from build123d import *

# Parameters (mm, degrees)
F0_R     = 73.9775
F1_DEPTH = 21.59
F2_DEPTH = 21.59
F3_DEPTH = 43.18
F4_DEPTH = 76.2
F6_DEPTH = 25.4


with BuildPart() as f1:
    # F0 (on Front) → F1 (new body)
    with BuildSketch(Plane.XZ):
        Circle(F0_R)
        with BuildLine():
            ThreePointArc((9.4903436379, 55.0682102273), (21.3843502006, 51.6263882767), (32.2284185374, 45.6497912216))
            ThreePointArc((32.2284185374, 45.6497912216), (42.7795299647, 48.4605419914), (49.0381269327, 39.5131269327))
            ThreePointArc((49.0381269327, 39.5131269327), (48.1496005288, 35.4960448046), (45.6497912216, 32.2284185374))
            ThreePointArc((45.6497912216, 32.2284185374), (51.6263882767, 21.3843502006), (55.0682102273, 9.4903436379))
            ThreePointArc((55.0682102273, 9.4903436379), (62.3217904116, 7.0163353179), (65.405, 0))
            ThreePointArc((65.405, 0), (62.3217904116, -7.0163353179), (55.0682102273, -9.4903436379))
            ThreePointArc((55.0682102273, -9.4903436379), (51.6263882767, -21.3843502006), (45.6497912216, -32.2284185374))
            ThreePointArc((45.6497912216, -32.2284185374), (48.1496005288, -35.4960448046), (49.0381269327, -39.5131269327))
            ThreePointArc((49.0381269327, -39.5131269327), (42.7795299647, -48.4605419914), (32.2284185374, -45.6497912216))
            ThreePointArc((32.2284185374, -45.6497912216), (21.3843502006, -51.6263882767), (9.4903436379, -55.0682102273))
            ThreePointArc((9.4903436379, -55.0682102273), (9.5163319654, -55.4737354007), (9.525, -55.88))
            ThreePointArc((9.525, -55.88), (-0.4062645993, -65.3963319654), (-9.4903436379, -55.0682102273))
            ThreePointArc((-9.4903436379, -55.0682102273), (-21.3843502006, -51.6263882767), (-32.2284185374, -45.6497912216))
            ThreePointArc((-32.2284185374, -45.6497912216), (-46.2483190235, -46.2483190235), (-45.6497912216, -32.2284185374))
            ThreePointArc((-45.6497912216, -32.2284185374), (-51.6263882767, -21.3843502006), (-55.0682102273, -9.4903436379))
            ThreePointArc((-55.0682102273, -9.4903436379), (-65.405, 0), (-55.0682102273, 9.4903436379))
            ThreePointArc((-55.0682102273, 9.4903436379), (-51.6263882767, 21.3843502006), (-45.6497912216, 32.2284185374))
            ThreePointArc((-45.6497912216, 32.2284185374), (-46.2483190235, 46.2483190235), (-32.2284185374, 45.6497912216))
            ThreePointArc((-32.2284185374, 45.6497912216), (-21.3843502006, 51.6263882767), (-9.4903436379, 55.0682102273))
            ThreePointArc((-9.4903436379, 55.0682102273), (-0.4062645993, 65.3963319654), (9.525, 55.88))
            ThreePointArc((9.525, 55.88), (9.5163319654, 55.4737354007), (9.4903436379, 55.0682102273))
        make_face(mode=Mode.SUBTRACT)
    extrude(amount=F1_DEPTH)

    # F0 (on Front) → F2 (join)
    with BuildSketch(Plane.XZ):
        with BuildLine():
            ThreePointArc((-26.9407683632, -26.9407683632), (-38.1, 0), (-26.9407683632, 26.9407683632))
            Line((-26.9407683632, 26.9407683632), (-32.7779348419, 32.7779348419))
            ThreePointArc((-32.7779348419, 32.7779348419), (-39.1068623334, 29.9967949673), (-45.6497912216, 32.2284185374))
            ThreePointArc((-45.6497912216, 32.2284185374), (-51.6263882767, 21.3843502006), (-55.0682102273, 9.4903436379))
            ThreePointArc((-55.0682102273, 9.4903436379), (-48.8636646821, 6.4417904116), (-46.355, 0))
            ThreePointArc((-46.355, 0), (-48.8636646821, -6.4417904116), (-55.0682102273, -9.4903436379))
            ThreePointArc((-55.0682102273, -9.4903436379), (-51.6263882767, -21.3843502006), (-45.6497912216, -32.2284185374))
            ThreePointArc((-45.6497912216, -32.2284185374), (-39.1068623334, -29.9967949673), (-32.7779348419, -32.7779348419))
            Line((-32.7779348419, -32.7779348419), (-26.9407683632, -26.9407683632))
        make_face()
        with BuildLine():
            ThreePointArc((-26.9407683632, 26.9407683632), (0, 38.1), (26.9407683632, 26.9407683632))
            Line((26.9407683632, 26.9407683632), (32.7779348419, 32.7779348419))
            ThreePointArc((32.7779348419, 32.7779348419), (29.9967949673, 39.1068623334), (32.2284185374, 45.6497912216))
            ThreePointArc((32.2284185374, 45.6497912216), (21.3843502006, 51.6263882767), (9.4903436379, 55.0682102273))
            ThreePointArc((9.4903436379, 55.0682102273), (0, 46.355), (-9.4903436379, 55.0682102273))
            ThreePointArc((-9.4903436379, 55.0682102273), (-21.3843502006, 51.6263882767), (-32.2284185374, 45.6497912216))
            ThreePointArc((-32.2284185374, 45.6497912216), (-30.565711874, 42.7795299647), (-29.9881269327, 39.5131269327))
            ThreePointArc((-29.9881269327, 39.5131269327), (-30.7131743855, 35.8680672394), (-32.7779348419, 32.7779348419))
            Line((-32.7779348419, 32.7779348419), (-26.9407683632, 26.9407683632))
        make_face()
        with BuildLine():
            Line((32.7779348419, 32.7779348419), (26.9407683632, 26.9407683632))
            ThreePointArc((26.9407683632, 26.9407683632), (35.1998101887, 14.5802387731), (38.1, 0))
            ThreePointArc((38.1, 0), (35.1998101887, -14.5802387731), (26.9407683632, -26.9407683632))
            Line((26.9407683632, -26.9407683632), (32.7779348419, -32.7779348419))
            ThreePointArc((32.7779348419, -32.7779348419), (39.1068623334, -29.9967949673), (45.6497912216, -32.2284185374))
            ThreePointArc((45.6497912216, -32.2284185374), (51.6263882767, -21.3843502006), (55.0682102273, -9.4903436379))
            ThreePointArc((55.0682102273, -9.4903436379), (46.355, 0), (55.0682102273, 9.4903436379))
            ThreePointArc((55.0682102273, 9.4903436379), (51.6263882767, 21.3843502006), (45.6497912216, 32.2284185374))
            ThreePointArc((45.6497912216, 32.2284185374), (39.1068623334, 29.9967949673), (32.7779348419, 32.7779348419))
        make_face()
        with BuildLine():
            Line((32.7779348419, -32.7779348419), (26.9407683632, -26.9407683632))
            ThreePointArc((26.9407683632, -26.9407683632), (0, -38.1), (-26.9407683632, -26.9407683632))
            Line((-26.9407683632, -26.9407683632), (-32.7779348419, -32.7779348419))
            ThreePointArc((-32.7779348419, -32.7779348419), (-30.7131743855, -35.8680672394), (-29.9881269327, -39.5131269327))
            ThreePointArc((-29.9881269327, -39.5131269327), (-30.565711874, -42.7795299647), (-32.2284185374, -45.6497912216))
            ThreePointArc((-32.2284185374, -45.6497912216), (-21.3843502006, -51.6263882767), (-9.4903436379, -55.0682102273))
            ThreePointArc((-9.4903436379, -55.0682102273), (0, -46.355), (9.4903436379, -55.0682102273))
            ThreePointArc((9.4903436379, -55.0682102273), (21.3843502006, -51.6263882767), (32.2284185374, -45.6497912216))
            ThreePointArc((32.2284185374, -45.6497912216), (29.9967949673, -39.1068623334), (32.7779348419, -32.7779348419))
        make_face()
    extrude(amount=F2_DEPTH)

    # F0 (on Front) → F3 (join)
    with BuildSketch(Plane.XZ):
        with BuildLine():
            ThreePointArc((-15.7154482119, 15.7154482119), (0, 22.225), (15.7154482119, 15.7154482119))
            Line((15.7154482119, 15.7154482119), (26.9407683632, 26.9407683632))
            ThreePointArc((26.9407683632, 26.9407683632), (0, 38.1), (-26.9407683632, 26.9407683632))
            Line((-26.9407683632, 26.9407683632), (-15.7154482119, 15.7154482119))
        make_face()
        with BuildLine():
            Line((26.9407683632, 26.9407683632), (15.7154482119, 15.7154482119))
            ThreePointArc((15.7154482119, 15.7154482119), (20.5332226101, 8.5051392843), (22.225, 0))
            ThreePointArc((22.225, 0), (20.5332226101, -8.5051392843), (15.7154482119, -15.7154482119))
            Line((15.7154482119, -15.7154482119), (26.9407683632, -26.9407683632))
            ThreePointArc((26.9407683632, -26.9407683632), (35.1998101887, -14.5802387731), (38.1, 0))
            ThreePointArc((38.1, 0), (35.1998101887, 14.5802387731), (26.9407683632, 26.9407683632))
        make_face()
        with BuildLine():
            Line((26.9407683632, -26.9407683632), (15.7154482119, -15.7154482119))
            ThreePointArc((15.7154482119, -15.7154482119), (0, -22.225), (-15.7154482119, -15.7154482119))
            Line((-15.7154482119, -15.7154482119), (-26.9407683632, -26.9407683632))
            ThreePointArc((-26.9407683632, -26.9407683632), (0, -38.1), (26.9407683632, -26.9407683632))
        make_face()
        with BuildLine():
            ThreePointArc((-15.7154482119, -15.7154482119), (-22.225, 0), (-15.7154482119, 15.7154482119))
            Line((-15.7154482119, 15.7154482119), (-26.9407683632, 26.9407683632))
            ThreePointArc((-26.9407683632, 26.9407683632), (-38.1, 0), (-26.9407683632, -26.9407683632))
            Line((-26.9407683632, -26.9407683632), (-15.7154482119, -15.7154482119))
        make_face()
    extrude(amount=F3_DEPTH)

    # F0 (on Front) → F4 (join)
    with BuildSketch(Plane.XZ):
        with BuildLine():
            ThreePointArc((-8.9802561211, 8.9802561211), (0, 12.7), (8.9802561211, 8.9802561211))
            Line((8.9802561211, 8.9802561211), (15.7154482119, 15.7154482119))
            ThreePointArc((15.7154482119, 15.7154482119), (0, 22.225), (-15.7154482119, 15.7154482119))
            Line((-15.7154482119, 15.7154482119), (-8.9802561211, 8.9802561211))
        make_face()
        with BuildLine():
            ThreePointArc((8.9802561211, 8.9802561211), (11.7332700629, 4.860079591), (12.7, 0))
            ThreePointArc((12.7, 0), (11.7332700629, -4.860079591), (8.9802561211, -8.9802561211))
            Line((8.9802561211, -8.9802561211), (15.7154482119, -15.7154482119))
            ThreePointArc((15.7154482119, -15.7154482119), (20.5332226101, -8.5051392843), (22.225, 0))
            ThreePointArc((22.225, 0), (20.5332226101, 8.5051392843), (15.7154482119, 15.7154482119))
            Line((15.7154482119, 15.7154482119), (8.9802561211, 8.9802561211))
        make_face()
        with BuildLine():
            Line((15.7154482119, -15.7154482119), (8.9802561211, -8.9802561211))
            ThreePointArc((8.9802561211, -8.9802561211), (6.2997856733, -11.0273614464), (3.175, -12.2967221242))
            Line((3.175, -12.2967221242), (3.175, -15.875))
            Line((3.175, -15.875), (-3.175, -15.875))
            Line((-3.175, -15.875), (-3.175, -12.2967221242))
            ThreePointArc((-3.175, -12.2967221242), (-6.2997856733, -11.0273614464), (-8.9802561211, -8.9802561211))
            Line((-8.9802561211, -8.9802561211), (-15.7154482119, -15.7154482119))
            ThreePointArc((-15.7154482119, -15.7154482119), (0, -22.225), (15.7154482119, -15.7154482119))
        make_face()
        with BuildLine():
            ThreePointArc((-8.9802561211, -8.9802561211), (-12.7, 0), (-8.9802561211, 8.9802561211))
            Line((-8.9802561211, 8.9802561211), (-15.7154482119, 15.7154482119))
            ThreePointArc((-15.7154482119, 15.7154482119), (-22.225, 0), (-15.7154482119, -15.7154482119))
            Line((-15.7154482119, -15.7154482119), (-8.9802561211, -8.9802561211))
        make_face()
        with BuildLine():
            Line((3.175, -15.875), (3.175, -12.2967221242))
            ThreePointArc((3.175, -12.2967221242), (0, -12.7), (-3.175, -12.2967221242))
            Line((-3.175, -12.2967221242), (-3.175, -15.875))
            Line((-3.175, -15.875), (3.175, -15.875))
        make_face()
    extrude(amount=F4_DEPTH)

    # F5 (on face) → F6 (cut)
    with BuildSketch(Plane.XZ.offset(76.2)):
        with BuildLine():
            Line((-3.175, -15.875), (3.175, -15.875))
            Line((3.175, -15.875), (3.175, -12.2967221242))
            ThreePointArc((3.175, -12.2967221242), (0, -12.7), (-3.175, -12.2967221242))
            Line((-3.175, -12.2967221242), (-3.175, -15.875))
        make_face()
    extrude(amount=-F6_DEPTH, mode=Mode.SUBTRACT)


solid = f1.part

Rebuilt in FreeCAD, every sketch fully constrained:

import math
import FreeCAD as App
import Part
import Sketcher

V = App.Vector
Q = App.Units.Quantity

doc = App.newDocument("Part")
body = doc.addObject("PartDesign::Body", "Body")

# Sketch on XZ plane
sketch1 = body.newObject("Sketcher::SketchObject", "Sketch")
sketch1.AttachmentSupport = (doc.getObject("XZ_Plane"), [""])
sketch1.MapMode = "FlatFace"
sketch1.addGeometry(Part.Circle(V(0, 0, 0), V(0, 0, 1), 74), False)
sketch1.addGeometry(Part.ArcOfCircle(Part.Circle(V(0, 55.9, 0), V(0, 0, 1), 9.5), math.radians(-4.89), math.radians(0)), False)
sketch1.addGeometry(Part.ArcOfCircle(Part.Circle(V(0, 0, 0), V(0, 0, 1), 55.9), math.radians(55), math.radians(80)), False)
sketch1.addGeometry(Part.ArcOfCircle(Part.Circle(V(39.5, 39.5, 0), V(0, 0, 1), 9.5), math.radians(0), math.radians(140)), False)
sketch1.addGeometry(Part.ArcOfCircle(Part.Circle(V(39.5, 39.5, 0), V(0, 0, 1), 9.5), math.radians(-50), math.radians(0)), False)
sketch1.addGeometry(Part.ArcOfCircle(Part.Circle(V(0, 0, 0), V(0, 0, 1), 55.9), math.radians(10), math.radians(35)), False)
sketch1.addGeometry(Part.ArcOfCircle(Part.Circle(V(55.9, 0, 0), V(0, 0, 1), 9.5), math.radians(0), math.radians(95)), False)
sketch1.addGeometry(Part.ArcOfCircle(Part.Circle(V(55.9, 0, 0), V(0, 0, 1), 9.5), math.radians(-95), math.radians(0)), False)
sketch1.addGeometry(Part.ArcOfCircle(Part.Circle(V(0, 0, 0), V(0, 0, 1), 55.9), math.radians(-35), math.radians(-10)), False)
sketch1.addGeometry(Part.ArcOfCircle(Part.Circle(V(39.5, -39.5, 0), V(0, 0, 1), 9.5), math.radians(0), math.radians(50)), False)
sketch1.addGeometry(Part.ArcOfCircle(Part.Circle(V(39.5, -39.5, 0), V(0, 0, 1), 9.5), math.radians(-140), math.radians(0)), False)
sketch1.addGeometry(Part.ArcOfCircle(Part.Circle(V(0, 0, 0), V(0, 0, 1), 55.9), math.radians(-80), math.radians(-55)), False)
sketch1.addGeometry(Part.ArcOfCircle(Part.Circle(V(0, -55.9, 0), V(0, 0, 1), 9.5), math.radians(0), math.radians(4.89)), False)
sketch1.addGeometry(Part.ArcOfCircle(Part.Circle(V(0, -55.9, 0), V(0, 0, 1), 9.5), math.radians(175), math.radians(360)), False)
sketch1.addGeometry(Part.ArcOfCircle(Part.Circle(V(0, 0, 0), V(0, 0, 1), 55.9), math.radians(-125), math.radians(-100)), False)
sketch1.addGeometry(Part.ArcOfCircle(Part.Circle(V(-39.5, -39.5, 0), V(0, 0, 1), 9.5), math.radians(130), math.radians(320)), False)
sketch1.addGeometry(Part.ArcOfCircle(Part.Circle(V(0, 0, 0), V(0, 0, 1), 55.9), math.radians(-170), math.radians(-145)), False)
sketch1.addGeometry(Part.ArcOfCircle(Part.Circle(V(-55.9, 0, 0), V(0, 0, 1), 9.5), math.radians(85), math.radians(275)), False)
sketch1.addGeometry(Part.ArcOfCircle(Part.Circle(V(0, 0, 0), V(0, 0, 1), 55.9), math.radians(145), math.radians(170)), False)
sketch1.addGeometry(Part.ArcOfCircle(Part.Circle(V(-39.5, 39.5, 0), V(0, 0, 1), 9.5), math.radians(40), math.radians(230)), False)
sketch1.addGeometry(Part.ArcOfCircle(Part.Circle(V(0, 0, 0), V(0, 0, 1), 55.9), math.radians(100), math.radians(125)), False)
sketch1.addGeometry(Part.ArcOfCircle(Part.Circle(V(0, 55.9, 0), V(0, 0, 1), 9.5), math.radians(0), math.radians(185)), False)
sketch1.addConstraint(Sketcher.Constraint("Coincident", 1, 1, 2, 2))
sketch1.addConstraint(Sketcher.Constraint("Coincident", 2, 1, 3, 2))
sketch1.addConstraint(Sketcher.Constraint("Tangent", 3, 1, 4, 2))
sketch1.addConstraint(Sketcher.Constraint("Coincident", 4, 1, 5, 2))
sketch1.addConstraint(Sketcher.Constraint("Coincident", 5, 1, 6, 2))
sketch1.addConstraint(Sketcher.Constraint("Tangent", 6, 1, 7, 2))
sketch1.addConstraint(Sketcher.Constraint("Coincident", 7, 1, 8, 2))
sketch1.addConstraint(Sketcher.Constraint("Coincident", 8, 1, 9, 2))
sketch1.addConstraint(Sketcher.Constraint("Tangent", 9, 1, 10, 2))
sketch1.addConstraint(Sketcher.Constraint("Coincident", 10, 1, 11, 2))
sketch1.addConstraint(Sketcher.Constraint("Coincident", 11, 1, 12, 2))
sketch1.addConstraint(Sketcher.Constraint("Tangent", 12, 1, 13, 2))
sketch1.addConstraint(Sketcher.Constraint("Coincident", 13, 1, 14, 2))
sketch1.addConstraint(Sketcher.Constraint("Coincident", 14, 1, 15, 2))
sketch1.addConstraint(Sketcher.Constraint("Coincident", 15, 1, 16, 2))
sketch1.addConstraint(Sketcher.Constraint("Coincident", 16, 1, 17, 2))
sketch1.addConstraint(Sketcher.Constraint("Coincident", 17, 1, 18, 2))
sketch1.addConstraint(Sketcher.Constraint("Coincident", 18, 1, 19, 2))
sketch1.addConstraint(Sketcher.Constraint("Coincident", 19, 1, 20, 2))
sketch1.addConstraint(Sketcher.Constraint("Coincident", 20, 1, 21, 2))
sketch1.addConstraint(Sketcher.Constraint("Tangent", 21, 1, 1, 2))
sketch1.addConstraint(Sketcher.Constraint("Coincident", 0, 3, -1, 1))
sketch1.addConstraint(Sketcher.Constraint("Coincident", 2, 3, -1, 1))
sketch1.addConstraint(Sketcher.Constraint("Coincident", 5, 3, -1, 1))
sketch1.addConstraint(Sketcher.Constraint("Coincident", 8, 3, -1, 1))
sketch1.addConstraint(Sketcher.Constraint("Coincident", 11, 3, -1, 1))
sketch1.addConstraint(Sketcher.Constraint("Coincident", 14, 3, -1, 1))
sketch1.addConstraint(Sketcher.Constraint("Coincident", 16, 3, -1, 1))
sketch1.addConstraint(Sketcher.Constraint("Coincident", 18, 3, -1, 1))
sketch1.addConstraint(Sketcher.Constraint("Coincident", 20, 3, -1, 1))
sketch1.addConstraint(Sketcher.Constraint("Equal", 1, 3))
sketch1.addConstraint(Sketcher.Constraint("Equal", 3, 4))
sketch1.addConstraint(Sketcher.Constraint("Equal", 2, 5))
sketch1.addConstraint(Sketcher.Constraint("Equal", 4, 6))
sketch1.addConstraint(Sketcher.Constraint("Equal", 6, 7))
sketch1.addConstraint(Sketcher.Constraint("Equal", 5, 8))
sketch1.addConstraint(Sketcher.Constraint("Equal", 7, 9))
sketch1.addConstraint(Sketcher.Constraint("Equal", 9, 10))
sketch1.addConstraint(Sketcher.Constraint("Equal", 8, 11))
sketch1.addConstraint(Sketcher.Constraint("Equal", 10, 12))
sketch1.addConstraint(Sketcher.Constraint("Equal", 12, 13))
sketch1.addConstraint(Sketcher.Constraint("Equal", 11, 14))
sketch1.addConstraint(Sketcher.Constraint("Equal", 13, 15))
sketch1.addConstraint(Sketcher.Constraint("Equal", 14, 16))
sketch1.addConstraint(Sketcher.Constraint("Equal", 15, 17))
sketch1.addConstraint(Sketcher.Constraint("Equal", 16, 18))
sketch1.addConstraint(Sketcher.Constraint("Equal", 17, 19))
sketch1.addConstraint(Sketcher.Constraint("Equal", 18, 20))
sketch1.addConstraint(Sketcher.Constraint("Equal", 19, 21))
sketch1.addConstraint(Sketcher.Constraint("Symmetric", 1, 3, 12, 3, -1, 1))
sketch1.addConstraint(Sketcher.Constraint("Symmetric", 3, 3, 15, 3, -1, 1))
sketch1.addConstraint(Sketcher.Constraint("Symmetric", 6, 3, 17, 3, -1, 1))
sketch1.addConstraint(Sketcher.Constraint("Symmetric", 9, 3, 19, 3, -1, 1))
sketch1.addConstraint(Sketcher.Constraint("Symmetric", 9, 3, 15, 3, -2))
sketch1.addConstraint(Sketcher.Constraint("Symmetric", 12, 1, 21, 1, -1))
sketch1.addConstraint(Sketcher.Constraint("PointOnObject", 6, 3, -1))
sketch1.addConstraint(Sketcher.Constraint("PointOnObject", 6, 1, -1))
sketch1.addConstraint(Sketcher.Constraint("Horizontal", 19, 3, 3, 1))
sketch1.addConstraint(Sketcher.Constraint("Horizontal", 15, 3, 9, 1))
sketch1.addConstraint(Sketcher.Constraint("Horizontal", 13, 3, 12, 1))
sketch1.addConstraint(Sketcher.Constraint("Radius", 2, Q("2.2 in")))
sketch1.addConstraint(Sketcher.Constraint("Diameter", 0, Q("5.825 in")))
sketch1.addConstraint(Sketcher.Constraint("Radius", 1, Q("0.375 in")))
sketch1.addConstraint(Sketcher.Constraint("DistanceY", -1, 1, 1, 3, Q("2.2 in")))
sketch1.addConstraint(Sketcher.Constraint("DistanceX", -1, 1, 6, 3, Q("2.2 in")))
sketch1.addConstraint(Sketcher.Constraint("DistanceX", -1, 1, 2, 1, 32.228419))
sketch1.addConstraint(Sketcher.Constraint("DistanceX", -1, 1, 4, 1, 45.649791))
pad1 = body.newObject("PartDesign::Pad", "Pad")
pad1.Profile = sketch1
pad1.Length = Q("0.85 in")

# Sketch on XZ plane
sketch2 = body.newObject("Sketcher::SketchObject", "Sketch001")
sketch2.AttachmentSupport = (doc.getObject("XZ_Plane"), [""])
sketch2.MapMode = "FlatFace"
sketch2.addGeometry(Part.ArcOfCircle(Part.Circle(V(40, -40, 0), V(0, 0, 1), 10), math.radians(50), math.radians(135)), False)
sketch2.addGeometry(Part.ArcOfCircle(Part.Circle(V(0, 0, 0), V(0, 0, 1), 56), math.radians(-35), math.radians(-10)), False)
sketch2.addGeometry(Part.ArcOfCircle(Part.Circle(V(56, 0, 0), V(0, 0, 1), 10), math.radians(95), math.radians(265)), False)
sketch2.addGeometry(Part.ArcOfCircle(Part.Circle(V(0, 0, 0), V(0, 0, 1), 56), math.radians(10), math.radians(35)), False)
sketch2.addGeometry(Part.ArcOfCircle(Part.Circle(V(40, 40, 0), V(0, 0, 1), 10), math.radians(-135), math.radians(-50)), False)
sketch2.addGeometry(Part.ArcOfCircle(Part.Circle(V(40, 40, 0), V(0, 0, 1), 10), math.radians(140), math.radians(225)), False)
sketch2.addGeometry(Part.ArcOfCircle(Part.Circle(V(0, 0, 0), V(0, 0, 1), 56), math.radians(55), math.radians(80)), False)
sketch2.addGeometry(Part.ArcOfCircle(Part.Circle(V(0, 56, 0), V(0, 0, 1), 10), math.radians(-175), math.radians(-5)), False)
sketch2.addGeometry(Part.ArcOfCircle(Part.Circle(V(0, 0, 0), V(0, 0, 1), 56), math.radians(100), math.radians(125)), False)
sketch2.addGeometry(Part.ArcOfCircle(Part.Circle(V(-40, 40, 0), V(0, 0, 1), 10), math.radians(0), math.radians(40)), False)
sketch2.addGeometry(Part.ArcOfCircle(Part.Circle(V(-40, 40, 0), V(0, 0, 1), 10), math.radians(-45), math.radians(0)), False)
sketch2.addGeometry(Part.ArcOfCircle(Part.Circle(V(-40, 40, 0), V(0, 0, 1), 10), math.radians(-130), math.radians(-45)), False)
sketch2.addGeometry(Part.ArcOfCircle(Part.Circle(V(0, 0, 0), V(0, 0, 1), 56), math.radians(145), math.radians(170)), False)
sketch2.addGeometry(Part.ArcOfCircle(Part.Circle(V(-56, 0, 0), V(0, 0, 1), 10), math.radians(0), math.radians(85)), False)
sketch2.addGeometry(Part.ArcOfCircle(Part.Circle(V(-56, 0, 0), V(0, 0, 1), 10), math.radians(-85), math.radians(0)), False)
sketch2.addGeometry(Part.ArcOfCircle(Part.Circle(V(0, 0, 0), V(0, 0, 1), 56), math.radians(-170), math.radians(-145)), False)
sketch2.addGeometry(Part.ArcOfCircle(Part.Circle(V(-40, -40, 0), V(0, 0, 1), 10), math.radians(45), math.radians(130)), False)
sketch2.addGeometry(Part.ArcOfCircle(Part.Circle(V(-40, -40, 0), V(0, 0, 1), 10), math.radians(0), math.radians(45)), False)
sketch2.addGeometry(Part.ArcOfCircle(Part.Circle(V(-40, -40, 0), V(0, 0, 1), 10), math.radians(-40), math.radians(0)), False)
sketch2.addGeometry(Part.ArcOfCircle(Part.Circle(V(0, 0, 0), V(0, 0, 1), 56), math.radians(-125), math.radians(-100)), False)
sketch2.addGeometry(Part.ArcOfCircle(Part.Circle(V(0, -56, 0), V(0, 0, 1), 10), math.radians(5), math.radians(175)), False)
sketch2.addGeometry(Part.ArcOfCircle(Part.Circle(V(0, 0, 0), V(0, 0, 1), 56), math.radians(-80), math.radians(-55)), False)
sketch2.addGeometry(Part.ArcOfCircle(Part.Circle(V(40, -40, 0), V(0, 0, 1), 10), math.radians(135), math.radians(220)), False)
sketch2.addGeometry(Part.ArcOfCircle(Part.Circle(V(0, 0, 0), V(0, 0, 1), 38), math.radians(135), math.radians(225)), False)
sketch2.addGeometry(Part.ArcOfCircle(Part.Circle(V(0, 0, 0), V(0, 0, 1), 38), math.radians(45), math.radians(135)), False)
sketch2.addGeometry(Part.ArcOfCircle(Part.Circle(V(0, 0, 0), V(0, 0, 1), 38), math.radians(0), math.radians(45)), False)
sketch2.addGeometry(Part.ArcOfCircle(Part.Circle(V(0, 0, 0), V(0, 0, 1), 38), math.radians(-45), math.radians(0)), False)
sketch2.addGeometry(Part.ArcOfCircle(Part.Circle(V(0, 0, 0), V(0, 0, 1), 38), math.radians(-135), math.radians(-45)), False)
sketch2.addConstraint(Sketcher.Constraint("Coincident", 0, 1, 1, 1))
sketch2.addConstraint(Sketcher.Constraint("Coincident", 1, 2, 2, 2))
sketch2.addConstraint(Sketcher.Constraint("Coincident", 2, 1, 3, 1))
sketch2.addConstraint(Sketcher.Constraint("Coincident", 3, 2, 4, 2))
sketch2.addConstraint(Sketcher.Constraint("Tangent", 4, 1, 5, 2))
sketch2.addConstraint(Sketcher.Constraint("Coincident", 5, 1, 6, 1))
sketch2.addConstraint(Sketcher.Constraint("Coincident", 6, 2, 7, 2))
sketch2.addConstraint(Sketcher.Constraint("Coincident", 7, 1, 8, 1))
sketch2.addConstraint(Sketcher.Constraint("Coincident", 8, 2, 9, 2))
sketch2.addConstraint(Sketcher.Constraint("Tangent", 9, 1, 10, 2))
sketch2.addConstraint(Sketcher.Constraint("Tangent", 10, 1, 11, 2))
sketch2.addConstraint(Sketcher.Constraint("Coincident", 11, 1, 12, 1))
sketch2.addConstraint(Sketcher.Constraint("Coincident", 12, 2, 13, 2))
sketch2.addConstraint(Sketcher.Constraint("Tangent", 13, 1, 14, 2))
sketch2.addConstraint(Sketcher.Constraint("Coincident", 14, 1, 15, 1))
sketch2.addConstraint(Sketcher.Constraint("Coincident", 15, 2, 16, 2))
sketch2.addConstraint(Sketcher.Constraint("Tangent", 16, 1, 17, 2))
sketch2.addConstraint(Sketcher.Constraint("Tangent", 17, 1, 18, 2))
sketch2.addConstraint(Sketcher.Constraint("Coincident", 18, 1, 19, 1))
sketch2.addConstraint(Sketcher.Constraint("Coincident", 19, 2, 20, 2))
sketch2.addConstraint(Sketcher.Constraint("Coincident", 20, 1, 21, 1))
sketch2.addConstraint(Sketcher.Constraint("Coincident", 21, 2, 22, 2))
sketch2.addConstraint(Sketcher.Constraint("Tangent", 22, 1, 0, 2))
sketch2.addConstraint(Sketcher.Constraint("Tangent", 23, 1, 24, 2))
sketch2.addConstraint(Sketcher.Constraint("Tangent", 24, 1, 25, 2))
sketch2.addConstraint(Sketcher.Constraint("Tangent", 25, 1, 26, 2))
sketch2.addConstraint(Sketcher.Constraint("Tangent", 26, 1, 27, 2))
sketch2.addConstraint(Sketcher.Constraint("Tangent", 27, 1, 23, 2))
sketch2.addConstraint(Sketcher.Constraint("Coincident", 1, 3, -1, 1))
sketch2.addConstraint(Sketcher.Constraint("Coincident", 3, 3, -1, 1))
sketch2.addConstraint(Sketcher.Constraint("Coincident", 6, 3, -1, 1))
sketch2.addConstraint(Sketcher.Constraint("Coincident", 8, 3, -1, 1))
sketch2.addConstraint(Sketcher.Constraint("Coincident", 12, 3, -1, 1))
sketch2.addConstraint(Sketcher.Constraint("Coincident", 15, 3, -1, 1))
sketch2.addConstraint(Sketcher.Constraint("Coincident", 19, 3, -1, 1))
sketch2.addConstraint(Sketcher.Constraint("Coincident", 21, 3, -1, 1))
sketch2.addConstraint(Sketcher.Constraint("Coincident", 23, 3, -1, 1))
sketch2.addConstraint(Sketcher.Constraint("Coincident", 25, 3, -1, 1))
sketch2.addConstraint(Sketcher.Constraint("Coincident", 11, 3, 9, 3))
sketch2.addConstraint(Sketcher.Constraint("Coincident", 18, 3, 16, 3))
sketch2.addConstraint(Sketcher.Constraint("Equal", 0, 2))
sketch2.addConstraint(Sketcher.Constraint("Equal", 1, 3))
sketch2.addConstraint(Sketcher.Constraint("Equal", 2, 4))
sketch2.addConstraint(Sketcher.Constraint("Equal", 4, 5))
sketch2.addConstraint(Sketcher.Constraint("Equal", 3, 6))
sketch2.addConstraint(Sketcher.Constraint("Equal", 5, 7))
sketch2.addConstraint(Sketcher.Constraint("Equal", 6, 8))
sketch2.addConstraint(Sketcher.Constraint("Equal", 7, 9))
sketch2.addConstraint(Sketcher.Constraint("Equal", 8, 12))
sketch2.addConstraint(Sketcher.Constraint("Equal", 11, 13))
sketch2.addConstraint(Sketcher.Constraint("Equal", 13, 14))
sketch2.addConstraint(Sketcher.Constraint("Equal", 12, 15))
sketch2.addConstraint(Sketcher.Constraint("Equal", 14, 16))
sketch2.addConstraint(Sketcher.Constraint("Equal", 15, 19))
sketch2.addConstraint(Sketcher.Constraint("Equal", 18, 20))
sketch2.addConstraint(Sketcher.Constraint("Equal", 19, 21))
sketch2.addConstraint(Sketcher.Constraint("Equal", 20, 22))
sketch2.addConstraint(Sketcher.Constraint("Symmetric", 0, 3, 9, 3, -1, 1))
sketch2.addConstraint(Sketcher.Constraint("Symmetric", 2, 3, 13, 3, -1, 1))
sketch2.addConstraint(Sketcher.Constraint("Symmetric", 4, 3, 16, 3, -1, 1))
sketch2.addConstraint(Sketcher.Constraint("Symmetric", 7, 3, 20, 3, -1, 1))
sketch2.addConstraint(Sketcher.Constraint("Symmetric", 4, 3, 9, 3, -2))
sketch2.addConstraint(Sketcher.Constraint("PointOnObject", 2, 3, -1))
sketch2.addConstraint(Sketcher.Constraint("PointOnObject", 7, 3, -2))
sketch2.addConstraint(Sketcher.Constraint("PointOnObject", 13, 1, -1))
sketch2.addConstraint(Sketcher.Constraint("PointOnObject", 25, 1, -1))
sketch2.addConstraint(Sketcher.Constraint("Horizontal", 11, 3, 9, 1))
sketch2.addConstraint(Sketcher.Constraint("Horizontal", 4, 1, 10, 1))
sketch2.addConstraint(Sketcher.Constraint("Horizontal", 22, 3, 17, 1))
sketch2.addConstraint(Sketcher.Constraint("Horizontal", 16, 1, 22, 1))
sketch2.addConstraint(Sketcher.Constraint("Horizontal", 23, 1, 24, 1))
sketch2.addConstraint(Sketcher.Constraint("Horizontal", 26, 1, 27, 1))
sketch2.addConstraint(Sketcher.Constraint("Vertical", 10, 1, 16, 1))
sketch2.addConstraint(Sketcher.Constraint("Vertical", 24, 1, 26, 1))
sketch2.addConstraint(Sketcher.Constraint("Radius", 1, Q("2.2 in")))
sketch2.addConstraint(Sketcher.Constraint("Radius", 23, Q("1.5 in")))
sketch2.addConstraint(Sketcher.Constraint("Radius", 0, Q("0.375 in")))
sketch2.addConstraint(Sketcher.Constraint("DistanceX", -1, 1, 2, 3, Q("2.2 in")))
sketch2.addConstraint(Sketcher.Constraint("DistanceY", -1, 1, 7, 3, Q("2.2 in")))
sketch2.addConstraint(Sketcher.Constraint("DistanceX", -1, 1, 0, 1, 45.649791))
sketch2.addConstraint(Sketcher.Constraint("DistanceX", -1, 1, 5, 1, 32.228419))
sketch2.addConstraint(Sketcher.Constraint("DistanceX", 23, 1, -1, 1, 26.940768))
sketch2.addConstraint(Sketcher.Constraint("DistanceY", 2, 1, 4, 1, 23.287591))
pad2 = body.newObject("PartDesign::Pad", "Pad001")
pad2.Profile = sketch2
pad2.Length = Q("0.85 in")

# Sketch on XZ plane
sketch3 = body.newObject("Sketcher::SketchObject", "Sketch002")
sketch3.AttachmentSupport = (doc.getObject("XZ_Plane"), [""])
sketch3.MapMode = "FlatFace"
sketch3.addGeometry(Part.ArcOfCircle(Part.Circle(V(0, 0, 0), V(0, 0, 1), 38), math.radians(-135), math.radians(-45)), False)
sketch3.addGeometry(Part.ArcOfCircle(Part.Circle(V(0, 0, 0), V(0, 0, 1), 38), math.radians(-45), math.radians(0)), False)
sketch3.addGeometry(Part.ArcOfCircle(Part.Circle(V(0, 0, 0), V(0, 0, 1), 38), math.radians(0), math.radians(45)), False)
sketch3.addGeometry(Part.ArcOfCircle(Part.Circle(V(0, 0, 0), V(0, 0, 1), 38), math.radians(45), math.radians(135)), False)
sketch3.addGeometry(Part.ArcOfCircle(Part.Circle(V(0, 0, 0), V(0, 0, 1), 38), math.radians(135), math.radians(225)), False)
sketch3.addGeometry(Part.ArcOfCircle(Part.Circle(V(0, 0, 0), V(0, 0, 1), 22), math.radians(45), math.radians(135)), False)
sketch3.addGeometry(Part.ArcOfCircle(Part.Circle(V(0, 0, 0), V(0, 0, 1), 22), math.radians(0), math.radians(45)), False)
sketch3.addGeometry(Part.ArcOfCircle(Part.Circle(V(0, 0, 0), V(0, 0, 1), 22), math.radians(-45), math.radians(0)), False)
sketch3.addGeometry(Part.ArcOfCircle(Part.Circle(V(0, 0, 0), V(0, 0, 1), 22), math.radians(-135), math.radians(-45)), False)
sketch3.addGeometry(Part.ArcOfCircle(Part.Circle(V(0, 0, 0), V(0, 0, 1), 22), math.radians(135), math.radians(225)), False)
sketch3.addConstraint(Sketcher.Constraint("Tangent", 0, 2, 1, 1))
sketch3.addConstraint(Sketcher.Constraint("Tangent", 1, 2, 2, 1))
sketch3.addConstraint(Sketcher.Constraint("Tangent", 2, 2, 3, 1))
sketch3.addConstraint(Sketcher.Constraint("Tangent", 3, 2, 4, 1))
sketch3.addConstraint(Sketcher.Constraint("Tangent", 4, 2, 0, 1))
sketch3.addConstraint(Sketcher.Constraint("Tangent", 5, 1, 6, 2))
sketch3.addConstraint(Sketcher.Constraint("Tangent", 6, 1, 7, 2))
sketch3.addConstraint(Sketcher.Constraint("Tangent", 7, 1, 8, 2))
sketch3.addConstraint(Sketcher.Constraint("Tangent", 8, 1, 9, 2))
sketch3.addConstraint(Sketcher.Constraint("Tangent", 9, 1, 5, 2))
sketch3.addConstraint(Sketcher.Constraint("Coincident", 0, 3, -1, 1))
sketch3.addConstraint(Sketcher.Constraint("Coincident", 2, 3, -1, 1))
sketch3.addConstraint(Sketcher.Constraint("Coincident", 5, 3, -1, 1))
sketch3.addConstraint(Sketcher.Constraint("Coincident", 7, 3, -1, 1))
sketch3.addConstraint(Sketcher.Constraint("PointOnObject", 1, 2, -1))
sketch3.addConstraint(Sketcher.Constraint("PointOnObject", 6, 1, -1))
sketch3.addConstraint(Sketcher.Constraint("Horizontal", 2, 2, 3, 2))
sketch3.addConstraint(Sketcher.Constraint("Horizontal", 0, 2, 4, 2))
sketch3.addConstraint(Sketcher.Constraint("Horizontal", 7, 1, 8, 1))
sketch3.addConstraint(Sketcher.Constraint("Horizontal", 5, 1, 9, 1))
sketch3.addConstraint(Sketcher.Constraint("Vertical", 0, 2, 2, 2))
sketch3.addConstraint(Sketcher.Constraint("Vertical", 5, 1, 7, 1))
sketch3.addConstraint(Sketcher.Constraint("Radius", 0, Q("1.5 in")))
sketch3.addConstraint(Sketcher.Constraint("Radius", 5, Q("0.875 in")))
sketch3.addConstraint(Sketcher.Constraint("DistanceX", -1, 1, 0, 2, 26.940768))
sketch3.addConstraint(Sketcher.Constraint("DistanceX", -1, 1, 5, 1, 15.715448))
pad3 = body.newObject("PartDesign::Pad", "Pad002")
pad3.Profile = sketch3
pad3.Length = Q("1.7 in")

# Sketch on XZ plane
sketch4 = body.newObject("Sketcher::SketchObject", "Sketch003")
sketch4.AttachmentSupport = (doc.getObject("XZ_Plane"), [""])
sketch4.MapMode = "FlatFace"
sketch4.addGeometry(Part.ArcOfCircle(Part.Circle(V(0, 0, 0), V(0, 0, 1), 22), math.radians(-135), math.radians(-45)), False)
sketch4.addGeometry(Part.ArcOfCircle(Part.Circle(V(0, 0, 0), V(0, 0, 1), 22), math.radians(-45), math.radians(0)), False)
sketch4.addGeometry(Part.ArcOfCircle(Part.Circle(V(0, 0, 0), V(0, 0, 1), 22), math.radians(0), math.radians(45)), False)
sketch4.addGeometry(Part.ArcOfCircle(Part.Circle(V(0, 0, 0), V(0, 0, 1), 22), math.radians(45), math.radians(135)), False)
sketch4.addGeometry(Part.ArcOfCircle(Part.Circle(V(0, 0, 0), V(0, 0, 1), 22), math.radians(135), math.radians(225)), False)
sketch4.addGeometry(Part.ArcOfCircle(Part.Circle(V(0, 0, 0), V(0, 0, 1), 13), math.radians(45), math.radians(135)), False)
sketch4.addGeometry(Part.ArcOfCircle(Part.Circle(V(0, 0, 0), V(0, 0, 1), 13), math.radians(0), math.radians(45)), False)
sketch4.addGeometry(Part.ArcOfCircle(Part.Circle(V(0, 0, 0), V(0, 0, 1), 13), math.radians(-45), math.radians(0)), False)
sketch4.addGeometry(Part.ArcOfCircle(Part.Circle(V(0, 0, 0), V(0, 0, 1), 13), math.radians(-76), math.radians(-45)), False)
sketch4.addGeometry(Part.ArcOfCircle(Part.Circle(V(0, 0, 0), V(0, 0, 1), 13), math.radians(-104), math.radians(-76)), False)
sketch4.addGeometry(Part.ArcOfCircle(Part.Circle(V(0, 0, 0), V(0, 0, 1), 13), math.radians(-135), math.radians(-104)), False)
sketch4.addGeometry(Part.ArcOfCircle(Part.Circle(V(0, 0, 0), V(0, 0, 1), 13), math.radians(135), math.radians(225)), False)
sketch4.addConstraint(Sketcher.Constraint("Tangent", 0, 2, 1, 1))
sketch4.addConstraint(Sketcher.Constraint("Tangent", 1, 2, 2, 1))
sketch4.addConstraint(Sketcher.Constraint("Tangent", 2, 2, 3, 1))
sketch4.addConstraint(Sketcher.Constraint("Tangent", 3, 2, 4, 1))
sketch4.addConstraint(Sketcher.Constraint("Tangent", 4, 2, 0, 1))
sketch4.addConstraint(Sketcher.Constraint("Tangent", 5, 1, 6, 2))
sketch4.addConstraint(Sketcher.Constraint("Tangent", 6, 1, 7, 2))
sketch4.addConstraint(Sketcher.Constraint("Tangent", 7, 1, 8, 2))
sketch4.addConstraint(Sketcher.Constraint("Tangent", 8, 1, 9, 2))
sketch4.addConstraint(Sketcher.Constraint("Tangent", 9, 1, 10, 2))
sketch4.addConstraint(Sketcher.Constraint("Tangent", 10, 1, 11, 2))
sketch4.addConstraint(Sketcher.Constraint("Tangent", 11, 1, 5, 2))
sketch4.addConstraint(Sketcher.Constraint("Coincident", 0, 3, -1, 1))
sketch4.addConstraint(Sketcher.Constraint("Coincident", 2, 3, -1, 1))
sketch4.addConstraint(Sketcher.Constraint("Coincident", 5, 3, -1, 1))
sketch4.addConstraint(Sketcher.Constraint("Coincident", 7, 3, -1, 1))
sketch4.addConstraint(Sketcher.Constraint("Coincident", 9, 3, -1, 1))
sketch4.addConstraint(Sketcher.Constraint("PointOnObject", 1, 2, -1))
sketch4.addConstraint(Sketcher.Constraint("PointOnObject", 6, 1, -1))
sketch4.addConstraint(Sketcher.Constraint("Horizontal", 2, 2, 3, 2))
sketch4.addConstraint(Sketcher.Constraint("Horizontal", 0, 2, 4, 2))
sketch4.addConstraint(Sketcher.Constraint("Horizontal", 8, 1, 9, 1))
sketch4.addConstraint(Sketcher.Constraint("Horizontal", 7, 1, 10, 1))
sketch4.addConstraint(Sketcher.Constraint("Horizontal", 5, 1, 11, 1))
sketch4.addConstraint(Sketcher.Constraint("Vertical", 0, 2, 2, 2))
sketch4.addConstraint(Sketcher.Constraint("Vertical", 5, 1, 7, 1))
sketch4.addConstraint(Sketcher.Constraint("Radius", 5, Q("0.5 in")))
sketch4.addConstraint(Sketcher.Constraint("Radius", 0, Q("0.875 in")))
sketch4.addConstraint(Sketcher.Constraint("DistanceX", 9, 1, 8, 1, Q("0.25 in")))
sketch4.addConstraint(Sketcher.Constraint("DistanceX", -1, 1, 0, 2, 15.715448))
sketch4.addConstraint(Sketcher.Constraint("DistanceX", -1, 1, 5, 1, 8.980256))
pad4 = body.newObject("PartDesign::Pad", "Pad003")
pad4.Profile = sketch4
pad4.Length = Q("3 in")

# Sketch on XZ plane
sketch5 = body.newObject("Sketcher::SketchObject", "Sketch004")
sketch5.AttachmentSupport = (doc.getObject("XZ_Plane"), [""])
sketch5.MapMode = "FlatFace"
sketch5.AttachmentOffset = App.Placement(V(0, 0, 3 * 25.4), App.Rotation())
sketch5.addGeometry(Part.LineSegment(V(-3.2, -15.9, 0), V(3.2, -15.9, 0)), False)
sketch5.addGeometry(Part.LineSegment(V(3.2, -15.9, 0), V(3.2, -12.3, 0)), False)
sketch5.addGeometry(Part.ArcOfCircle(Part.Circle(V(0, 0, 0), V(0, 0, 1), 12.7), math.radians(-104), math.radians(-76)), False)
sketch5.addGeometry(Part.LineSegment(V(-3.2, -12.3, 0), V(-3.2, -15.9, 0)), False)
sketch5.addConstraint(Sketcher.Constraint("Coincident", 0, 2, 1, 1))
sketch5.addConstraint(Sketcher.Constraint("Coincident", 1, 2, 2, 2))
sketch5.addConstraint(Sketcher.Constraint("Coincident", 2, 1, 3, 1))
sketch5.addConstraint(Sketcher.Constraint("Coincident", 3, 2, 0, 1))
sketch5.addConstraint(Sketcher.Constraint("Horizontal", 0))
sketch5.addConstraint(Sketcher.Constraint("Vertical", 1))
sketch5.addConstraint(Sketcher.Constraint("Vertical", 3))
sketch5.addConstraint(Sketcher.Constraint("Coincident", 2, 3, -1, 1))
sketch5.addConstraint(Sketcher.Constraint("Horizontal", 1, 2, 2, 1))
sketch5.addConstraint(Sketcher.Constraint("Radius", 2, Q("0.5 in")))
sketch5.addConstraint(Sketcher.Constraint("DistanceX", 0, 1, 0, 2, Q("0.25 in")))
sketch5.addConstraint(Sketcher.Constraint("DistanceY", 0, 2, -1, 1, Q("0.625 in")))
pocket1 = body.newObject("PartDesign::Pocket", "Pocket")
pocket1.Profile = sketch5
pocket1.Length = Q("1 in")

doc.recompute()
